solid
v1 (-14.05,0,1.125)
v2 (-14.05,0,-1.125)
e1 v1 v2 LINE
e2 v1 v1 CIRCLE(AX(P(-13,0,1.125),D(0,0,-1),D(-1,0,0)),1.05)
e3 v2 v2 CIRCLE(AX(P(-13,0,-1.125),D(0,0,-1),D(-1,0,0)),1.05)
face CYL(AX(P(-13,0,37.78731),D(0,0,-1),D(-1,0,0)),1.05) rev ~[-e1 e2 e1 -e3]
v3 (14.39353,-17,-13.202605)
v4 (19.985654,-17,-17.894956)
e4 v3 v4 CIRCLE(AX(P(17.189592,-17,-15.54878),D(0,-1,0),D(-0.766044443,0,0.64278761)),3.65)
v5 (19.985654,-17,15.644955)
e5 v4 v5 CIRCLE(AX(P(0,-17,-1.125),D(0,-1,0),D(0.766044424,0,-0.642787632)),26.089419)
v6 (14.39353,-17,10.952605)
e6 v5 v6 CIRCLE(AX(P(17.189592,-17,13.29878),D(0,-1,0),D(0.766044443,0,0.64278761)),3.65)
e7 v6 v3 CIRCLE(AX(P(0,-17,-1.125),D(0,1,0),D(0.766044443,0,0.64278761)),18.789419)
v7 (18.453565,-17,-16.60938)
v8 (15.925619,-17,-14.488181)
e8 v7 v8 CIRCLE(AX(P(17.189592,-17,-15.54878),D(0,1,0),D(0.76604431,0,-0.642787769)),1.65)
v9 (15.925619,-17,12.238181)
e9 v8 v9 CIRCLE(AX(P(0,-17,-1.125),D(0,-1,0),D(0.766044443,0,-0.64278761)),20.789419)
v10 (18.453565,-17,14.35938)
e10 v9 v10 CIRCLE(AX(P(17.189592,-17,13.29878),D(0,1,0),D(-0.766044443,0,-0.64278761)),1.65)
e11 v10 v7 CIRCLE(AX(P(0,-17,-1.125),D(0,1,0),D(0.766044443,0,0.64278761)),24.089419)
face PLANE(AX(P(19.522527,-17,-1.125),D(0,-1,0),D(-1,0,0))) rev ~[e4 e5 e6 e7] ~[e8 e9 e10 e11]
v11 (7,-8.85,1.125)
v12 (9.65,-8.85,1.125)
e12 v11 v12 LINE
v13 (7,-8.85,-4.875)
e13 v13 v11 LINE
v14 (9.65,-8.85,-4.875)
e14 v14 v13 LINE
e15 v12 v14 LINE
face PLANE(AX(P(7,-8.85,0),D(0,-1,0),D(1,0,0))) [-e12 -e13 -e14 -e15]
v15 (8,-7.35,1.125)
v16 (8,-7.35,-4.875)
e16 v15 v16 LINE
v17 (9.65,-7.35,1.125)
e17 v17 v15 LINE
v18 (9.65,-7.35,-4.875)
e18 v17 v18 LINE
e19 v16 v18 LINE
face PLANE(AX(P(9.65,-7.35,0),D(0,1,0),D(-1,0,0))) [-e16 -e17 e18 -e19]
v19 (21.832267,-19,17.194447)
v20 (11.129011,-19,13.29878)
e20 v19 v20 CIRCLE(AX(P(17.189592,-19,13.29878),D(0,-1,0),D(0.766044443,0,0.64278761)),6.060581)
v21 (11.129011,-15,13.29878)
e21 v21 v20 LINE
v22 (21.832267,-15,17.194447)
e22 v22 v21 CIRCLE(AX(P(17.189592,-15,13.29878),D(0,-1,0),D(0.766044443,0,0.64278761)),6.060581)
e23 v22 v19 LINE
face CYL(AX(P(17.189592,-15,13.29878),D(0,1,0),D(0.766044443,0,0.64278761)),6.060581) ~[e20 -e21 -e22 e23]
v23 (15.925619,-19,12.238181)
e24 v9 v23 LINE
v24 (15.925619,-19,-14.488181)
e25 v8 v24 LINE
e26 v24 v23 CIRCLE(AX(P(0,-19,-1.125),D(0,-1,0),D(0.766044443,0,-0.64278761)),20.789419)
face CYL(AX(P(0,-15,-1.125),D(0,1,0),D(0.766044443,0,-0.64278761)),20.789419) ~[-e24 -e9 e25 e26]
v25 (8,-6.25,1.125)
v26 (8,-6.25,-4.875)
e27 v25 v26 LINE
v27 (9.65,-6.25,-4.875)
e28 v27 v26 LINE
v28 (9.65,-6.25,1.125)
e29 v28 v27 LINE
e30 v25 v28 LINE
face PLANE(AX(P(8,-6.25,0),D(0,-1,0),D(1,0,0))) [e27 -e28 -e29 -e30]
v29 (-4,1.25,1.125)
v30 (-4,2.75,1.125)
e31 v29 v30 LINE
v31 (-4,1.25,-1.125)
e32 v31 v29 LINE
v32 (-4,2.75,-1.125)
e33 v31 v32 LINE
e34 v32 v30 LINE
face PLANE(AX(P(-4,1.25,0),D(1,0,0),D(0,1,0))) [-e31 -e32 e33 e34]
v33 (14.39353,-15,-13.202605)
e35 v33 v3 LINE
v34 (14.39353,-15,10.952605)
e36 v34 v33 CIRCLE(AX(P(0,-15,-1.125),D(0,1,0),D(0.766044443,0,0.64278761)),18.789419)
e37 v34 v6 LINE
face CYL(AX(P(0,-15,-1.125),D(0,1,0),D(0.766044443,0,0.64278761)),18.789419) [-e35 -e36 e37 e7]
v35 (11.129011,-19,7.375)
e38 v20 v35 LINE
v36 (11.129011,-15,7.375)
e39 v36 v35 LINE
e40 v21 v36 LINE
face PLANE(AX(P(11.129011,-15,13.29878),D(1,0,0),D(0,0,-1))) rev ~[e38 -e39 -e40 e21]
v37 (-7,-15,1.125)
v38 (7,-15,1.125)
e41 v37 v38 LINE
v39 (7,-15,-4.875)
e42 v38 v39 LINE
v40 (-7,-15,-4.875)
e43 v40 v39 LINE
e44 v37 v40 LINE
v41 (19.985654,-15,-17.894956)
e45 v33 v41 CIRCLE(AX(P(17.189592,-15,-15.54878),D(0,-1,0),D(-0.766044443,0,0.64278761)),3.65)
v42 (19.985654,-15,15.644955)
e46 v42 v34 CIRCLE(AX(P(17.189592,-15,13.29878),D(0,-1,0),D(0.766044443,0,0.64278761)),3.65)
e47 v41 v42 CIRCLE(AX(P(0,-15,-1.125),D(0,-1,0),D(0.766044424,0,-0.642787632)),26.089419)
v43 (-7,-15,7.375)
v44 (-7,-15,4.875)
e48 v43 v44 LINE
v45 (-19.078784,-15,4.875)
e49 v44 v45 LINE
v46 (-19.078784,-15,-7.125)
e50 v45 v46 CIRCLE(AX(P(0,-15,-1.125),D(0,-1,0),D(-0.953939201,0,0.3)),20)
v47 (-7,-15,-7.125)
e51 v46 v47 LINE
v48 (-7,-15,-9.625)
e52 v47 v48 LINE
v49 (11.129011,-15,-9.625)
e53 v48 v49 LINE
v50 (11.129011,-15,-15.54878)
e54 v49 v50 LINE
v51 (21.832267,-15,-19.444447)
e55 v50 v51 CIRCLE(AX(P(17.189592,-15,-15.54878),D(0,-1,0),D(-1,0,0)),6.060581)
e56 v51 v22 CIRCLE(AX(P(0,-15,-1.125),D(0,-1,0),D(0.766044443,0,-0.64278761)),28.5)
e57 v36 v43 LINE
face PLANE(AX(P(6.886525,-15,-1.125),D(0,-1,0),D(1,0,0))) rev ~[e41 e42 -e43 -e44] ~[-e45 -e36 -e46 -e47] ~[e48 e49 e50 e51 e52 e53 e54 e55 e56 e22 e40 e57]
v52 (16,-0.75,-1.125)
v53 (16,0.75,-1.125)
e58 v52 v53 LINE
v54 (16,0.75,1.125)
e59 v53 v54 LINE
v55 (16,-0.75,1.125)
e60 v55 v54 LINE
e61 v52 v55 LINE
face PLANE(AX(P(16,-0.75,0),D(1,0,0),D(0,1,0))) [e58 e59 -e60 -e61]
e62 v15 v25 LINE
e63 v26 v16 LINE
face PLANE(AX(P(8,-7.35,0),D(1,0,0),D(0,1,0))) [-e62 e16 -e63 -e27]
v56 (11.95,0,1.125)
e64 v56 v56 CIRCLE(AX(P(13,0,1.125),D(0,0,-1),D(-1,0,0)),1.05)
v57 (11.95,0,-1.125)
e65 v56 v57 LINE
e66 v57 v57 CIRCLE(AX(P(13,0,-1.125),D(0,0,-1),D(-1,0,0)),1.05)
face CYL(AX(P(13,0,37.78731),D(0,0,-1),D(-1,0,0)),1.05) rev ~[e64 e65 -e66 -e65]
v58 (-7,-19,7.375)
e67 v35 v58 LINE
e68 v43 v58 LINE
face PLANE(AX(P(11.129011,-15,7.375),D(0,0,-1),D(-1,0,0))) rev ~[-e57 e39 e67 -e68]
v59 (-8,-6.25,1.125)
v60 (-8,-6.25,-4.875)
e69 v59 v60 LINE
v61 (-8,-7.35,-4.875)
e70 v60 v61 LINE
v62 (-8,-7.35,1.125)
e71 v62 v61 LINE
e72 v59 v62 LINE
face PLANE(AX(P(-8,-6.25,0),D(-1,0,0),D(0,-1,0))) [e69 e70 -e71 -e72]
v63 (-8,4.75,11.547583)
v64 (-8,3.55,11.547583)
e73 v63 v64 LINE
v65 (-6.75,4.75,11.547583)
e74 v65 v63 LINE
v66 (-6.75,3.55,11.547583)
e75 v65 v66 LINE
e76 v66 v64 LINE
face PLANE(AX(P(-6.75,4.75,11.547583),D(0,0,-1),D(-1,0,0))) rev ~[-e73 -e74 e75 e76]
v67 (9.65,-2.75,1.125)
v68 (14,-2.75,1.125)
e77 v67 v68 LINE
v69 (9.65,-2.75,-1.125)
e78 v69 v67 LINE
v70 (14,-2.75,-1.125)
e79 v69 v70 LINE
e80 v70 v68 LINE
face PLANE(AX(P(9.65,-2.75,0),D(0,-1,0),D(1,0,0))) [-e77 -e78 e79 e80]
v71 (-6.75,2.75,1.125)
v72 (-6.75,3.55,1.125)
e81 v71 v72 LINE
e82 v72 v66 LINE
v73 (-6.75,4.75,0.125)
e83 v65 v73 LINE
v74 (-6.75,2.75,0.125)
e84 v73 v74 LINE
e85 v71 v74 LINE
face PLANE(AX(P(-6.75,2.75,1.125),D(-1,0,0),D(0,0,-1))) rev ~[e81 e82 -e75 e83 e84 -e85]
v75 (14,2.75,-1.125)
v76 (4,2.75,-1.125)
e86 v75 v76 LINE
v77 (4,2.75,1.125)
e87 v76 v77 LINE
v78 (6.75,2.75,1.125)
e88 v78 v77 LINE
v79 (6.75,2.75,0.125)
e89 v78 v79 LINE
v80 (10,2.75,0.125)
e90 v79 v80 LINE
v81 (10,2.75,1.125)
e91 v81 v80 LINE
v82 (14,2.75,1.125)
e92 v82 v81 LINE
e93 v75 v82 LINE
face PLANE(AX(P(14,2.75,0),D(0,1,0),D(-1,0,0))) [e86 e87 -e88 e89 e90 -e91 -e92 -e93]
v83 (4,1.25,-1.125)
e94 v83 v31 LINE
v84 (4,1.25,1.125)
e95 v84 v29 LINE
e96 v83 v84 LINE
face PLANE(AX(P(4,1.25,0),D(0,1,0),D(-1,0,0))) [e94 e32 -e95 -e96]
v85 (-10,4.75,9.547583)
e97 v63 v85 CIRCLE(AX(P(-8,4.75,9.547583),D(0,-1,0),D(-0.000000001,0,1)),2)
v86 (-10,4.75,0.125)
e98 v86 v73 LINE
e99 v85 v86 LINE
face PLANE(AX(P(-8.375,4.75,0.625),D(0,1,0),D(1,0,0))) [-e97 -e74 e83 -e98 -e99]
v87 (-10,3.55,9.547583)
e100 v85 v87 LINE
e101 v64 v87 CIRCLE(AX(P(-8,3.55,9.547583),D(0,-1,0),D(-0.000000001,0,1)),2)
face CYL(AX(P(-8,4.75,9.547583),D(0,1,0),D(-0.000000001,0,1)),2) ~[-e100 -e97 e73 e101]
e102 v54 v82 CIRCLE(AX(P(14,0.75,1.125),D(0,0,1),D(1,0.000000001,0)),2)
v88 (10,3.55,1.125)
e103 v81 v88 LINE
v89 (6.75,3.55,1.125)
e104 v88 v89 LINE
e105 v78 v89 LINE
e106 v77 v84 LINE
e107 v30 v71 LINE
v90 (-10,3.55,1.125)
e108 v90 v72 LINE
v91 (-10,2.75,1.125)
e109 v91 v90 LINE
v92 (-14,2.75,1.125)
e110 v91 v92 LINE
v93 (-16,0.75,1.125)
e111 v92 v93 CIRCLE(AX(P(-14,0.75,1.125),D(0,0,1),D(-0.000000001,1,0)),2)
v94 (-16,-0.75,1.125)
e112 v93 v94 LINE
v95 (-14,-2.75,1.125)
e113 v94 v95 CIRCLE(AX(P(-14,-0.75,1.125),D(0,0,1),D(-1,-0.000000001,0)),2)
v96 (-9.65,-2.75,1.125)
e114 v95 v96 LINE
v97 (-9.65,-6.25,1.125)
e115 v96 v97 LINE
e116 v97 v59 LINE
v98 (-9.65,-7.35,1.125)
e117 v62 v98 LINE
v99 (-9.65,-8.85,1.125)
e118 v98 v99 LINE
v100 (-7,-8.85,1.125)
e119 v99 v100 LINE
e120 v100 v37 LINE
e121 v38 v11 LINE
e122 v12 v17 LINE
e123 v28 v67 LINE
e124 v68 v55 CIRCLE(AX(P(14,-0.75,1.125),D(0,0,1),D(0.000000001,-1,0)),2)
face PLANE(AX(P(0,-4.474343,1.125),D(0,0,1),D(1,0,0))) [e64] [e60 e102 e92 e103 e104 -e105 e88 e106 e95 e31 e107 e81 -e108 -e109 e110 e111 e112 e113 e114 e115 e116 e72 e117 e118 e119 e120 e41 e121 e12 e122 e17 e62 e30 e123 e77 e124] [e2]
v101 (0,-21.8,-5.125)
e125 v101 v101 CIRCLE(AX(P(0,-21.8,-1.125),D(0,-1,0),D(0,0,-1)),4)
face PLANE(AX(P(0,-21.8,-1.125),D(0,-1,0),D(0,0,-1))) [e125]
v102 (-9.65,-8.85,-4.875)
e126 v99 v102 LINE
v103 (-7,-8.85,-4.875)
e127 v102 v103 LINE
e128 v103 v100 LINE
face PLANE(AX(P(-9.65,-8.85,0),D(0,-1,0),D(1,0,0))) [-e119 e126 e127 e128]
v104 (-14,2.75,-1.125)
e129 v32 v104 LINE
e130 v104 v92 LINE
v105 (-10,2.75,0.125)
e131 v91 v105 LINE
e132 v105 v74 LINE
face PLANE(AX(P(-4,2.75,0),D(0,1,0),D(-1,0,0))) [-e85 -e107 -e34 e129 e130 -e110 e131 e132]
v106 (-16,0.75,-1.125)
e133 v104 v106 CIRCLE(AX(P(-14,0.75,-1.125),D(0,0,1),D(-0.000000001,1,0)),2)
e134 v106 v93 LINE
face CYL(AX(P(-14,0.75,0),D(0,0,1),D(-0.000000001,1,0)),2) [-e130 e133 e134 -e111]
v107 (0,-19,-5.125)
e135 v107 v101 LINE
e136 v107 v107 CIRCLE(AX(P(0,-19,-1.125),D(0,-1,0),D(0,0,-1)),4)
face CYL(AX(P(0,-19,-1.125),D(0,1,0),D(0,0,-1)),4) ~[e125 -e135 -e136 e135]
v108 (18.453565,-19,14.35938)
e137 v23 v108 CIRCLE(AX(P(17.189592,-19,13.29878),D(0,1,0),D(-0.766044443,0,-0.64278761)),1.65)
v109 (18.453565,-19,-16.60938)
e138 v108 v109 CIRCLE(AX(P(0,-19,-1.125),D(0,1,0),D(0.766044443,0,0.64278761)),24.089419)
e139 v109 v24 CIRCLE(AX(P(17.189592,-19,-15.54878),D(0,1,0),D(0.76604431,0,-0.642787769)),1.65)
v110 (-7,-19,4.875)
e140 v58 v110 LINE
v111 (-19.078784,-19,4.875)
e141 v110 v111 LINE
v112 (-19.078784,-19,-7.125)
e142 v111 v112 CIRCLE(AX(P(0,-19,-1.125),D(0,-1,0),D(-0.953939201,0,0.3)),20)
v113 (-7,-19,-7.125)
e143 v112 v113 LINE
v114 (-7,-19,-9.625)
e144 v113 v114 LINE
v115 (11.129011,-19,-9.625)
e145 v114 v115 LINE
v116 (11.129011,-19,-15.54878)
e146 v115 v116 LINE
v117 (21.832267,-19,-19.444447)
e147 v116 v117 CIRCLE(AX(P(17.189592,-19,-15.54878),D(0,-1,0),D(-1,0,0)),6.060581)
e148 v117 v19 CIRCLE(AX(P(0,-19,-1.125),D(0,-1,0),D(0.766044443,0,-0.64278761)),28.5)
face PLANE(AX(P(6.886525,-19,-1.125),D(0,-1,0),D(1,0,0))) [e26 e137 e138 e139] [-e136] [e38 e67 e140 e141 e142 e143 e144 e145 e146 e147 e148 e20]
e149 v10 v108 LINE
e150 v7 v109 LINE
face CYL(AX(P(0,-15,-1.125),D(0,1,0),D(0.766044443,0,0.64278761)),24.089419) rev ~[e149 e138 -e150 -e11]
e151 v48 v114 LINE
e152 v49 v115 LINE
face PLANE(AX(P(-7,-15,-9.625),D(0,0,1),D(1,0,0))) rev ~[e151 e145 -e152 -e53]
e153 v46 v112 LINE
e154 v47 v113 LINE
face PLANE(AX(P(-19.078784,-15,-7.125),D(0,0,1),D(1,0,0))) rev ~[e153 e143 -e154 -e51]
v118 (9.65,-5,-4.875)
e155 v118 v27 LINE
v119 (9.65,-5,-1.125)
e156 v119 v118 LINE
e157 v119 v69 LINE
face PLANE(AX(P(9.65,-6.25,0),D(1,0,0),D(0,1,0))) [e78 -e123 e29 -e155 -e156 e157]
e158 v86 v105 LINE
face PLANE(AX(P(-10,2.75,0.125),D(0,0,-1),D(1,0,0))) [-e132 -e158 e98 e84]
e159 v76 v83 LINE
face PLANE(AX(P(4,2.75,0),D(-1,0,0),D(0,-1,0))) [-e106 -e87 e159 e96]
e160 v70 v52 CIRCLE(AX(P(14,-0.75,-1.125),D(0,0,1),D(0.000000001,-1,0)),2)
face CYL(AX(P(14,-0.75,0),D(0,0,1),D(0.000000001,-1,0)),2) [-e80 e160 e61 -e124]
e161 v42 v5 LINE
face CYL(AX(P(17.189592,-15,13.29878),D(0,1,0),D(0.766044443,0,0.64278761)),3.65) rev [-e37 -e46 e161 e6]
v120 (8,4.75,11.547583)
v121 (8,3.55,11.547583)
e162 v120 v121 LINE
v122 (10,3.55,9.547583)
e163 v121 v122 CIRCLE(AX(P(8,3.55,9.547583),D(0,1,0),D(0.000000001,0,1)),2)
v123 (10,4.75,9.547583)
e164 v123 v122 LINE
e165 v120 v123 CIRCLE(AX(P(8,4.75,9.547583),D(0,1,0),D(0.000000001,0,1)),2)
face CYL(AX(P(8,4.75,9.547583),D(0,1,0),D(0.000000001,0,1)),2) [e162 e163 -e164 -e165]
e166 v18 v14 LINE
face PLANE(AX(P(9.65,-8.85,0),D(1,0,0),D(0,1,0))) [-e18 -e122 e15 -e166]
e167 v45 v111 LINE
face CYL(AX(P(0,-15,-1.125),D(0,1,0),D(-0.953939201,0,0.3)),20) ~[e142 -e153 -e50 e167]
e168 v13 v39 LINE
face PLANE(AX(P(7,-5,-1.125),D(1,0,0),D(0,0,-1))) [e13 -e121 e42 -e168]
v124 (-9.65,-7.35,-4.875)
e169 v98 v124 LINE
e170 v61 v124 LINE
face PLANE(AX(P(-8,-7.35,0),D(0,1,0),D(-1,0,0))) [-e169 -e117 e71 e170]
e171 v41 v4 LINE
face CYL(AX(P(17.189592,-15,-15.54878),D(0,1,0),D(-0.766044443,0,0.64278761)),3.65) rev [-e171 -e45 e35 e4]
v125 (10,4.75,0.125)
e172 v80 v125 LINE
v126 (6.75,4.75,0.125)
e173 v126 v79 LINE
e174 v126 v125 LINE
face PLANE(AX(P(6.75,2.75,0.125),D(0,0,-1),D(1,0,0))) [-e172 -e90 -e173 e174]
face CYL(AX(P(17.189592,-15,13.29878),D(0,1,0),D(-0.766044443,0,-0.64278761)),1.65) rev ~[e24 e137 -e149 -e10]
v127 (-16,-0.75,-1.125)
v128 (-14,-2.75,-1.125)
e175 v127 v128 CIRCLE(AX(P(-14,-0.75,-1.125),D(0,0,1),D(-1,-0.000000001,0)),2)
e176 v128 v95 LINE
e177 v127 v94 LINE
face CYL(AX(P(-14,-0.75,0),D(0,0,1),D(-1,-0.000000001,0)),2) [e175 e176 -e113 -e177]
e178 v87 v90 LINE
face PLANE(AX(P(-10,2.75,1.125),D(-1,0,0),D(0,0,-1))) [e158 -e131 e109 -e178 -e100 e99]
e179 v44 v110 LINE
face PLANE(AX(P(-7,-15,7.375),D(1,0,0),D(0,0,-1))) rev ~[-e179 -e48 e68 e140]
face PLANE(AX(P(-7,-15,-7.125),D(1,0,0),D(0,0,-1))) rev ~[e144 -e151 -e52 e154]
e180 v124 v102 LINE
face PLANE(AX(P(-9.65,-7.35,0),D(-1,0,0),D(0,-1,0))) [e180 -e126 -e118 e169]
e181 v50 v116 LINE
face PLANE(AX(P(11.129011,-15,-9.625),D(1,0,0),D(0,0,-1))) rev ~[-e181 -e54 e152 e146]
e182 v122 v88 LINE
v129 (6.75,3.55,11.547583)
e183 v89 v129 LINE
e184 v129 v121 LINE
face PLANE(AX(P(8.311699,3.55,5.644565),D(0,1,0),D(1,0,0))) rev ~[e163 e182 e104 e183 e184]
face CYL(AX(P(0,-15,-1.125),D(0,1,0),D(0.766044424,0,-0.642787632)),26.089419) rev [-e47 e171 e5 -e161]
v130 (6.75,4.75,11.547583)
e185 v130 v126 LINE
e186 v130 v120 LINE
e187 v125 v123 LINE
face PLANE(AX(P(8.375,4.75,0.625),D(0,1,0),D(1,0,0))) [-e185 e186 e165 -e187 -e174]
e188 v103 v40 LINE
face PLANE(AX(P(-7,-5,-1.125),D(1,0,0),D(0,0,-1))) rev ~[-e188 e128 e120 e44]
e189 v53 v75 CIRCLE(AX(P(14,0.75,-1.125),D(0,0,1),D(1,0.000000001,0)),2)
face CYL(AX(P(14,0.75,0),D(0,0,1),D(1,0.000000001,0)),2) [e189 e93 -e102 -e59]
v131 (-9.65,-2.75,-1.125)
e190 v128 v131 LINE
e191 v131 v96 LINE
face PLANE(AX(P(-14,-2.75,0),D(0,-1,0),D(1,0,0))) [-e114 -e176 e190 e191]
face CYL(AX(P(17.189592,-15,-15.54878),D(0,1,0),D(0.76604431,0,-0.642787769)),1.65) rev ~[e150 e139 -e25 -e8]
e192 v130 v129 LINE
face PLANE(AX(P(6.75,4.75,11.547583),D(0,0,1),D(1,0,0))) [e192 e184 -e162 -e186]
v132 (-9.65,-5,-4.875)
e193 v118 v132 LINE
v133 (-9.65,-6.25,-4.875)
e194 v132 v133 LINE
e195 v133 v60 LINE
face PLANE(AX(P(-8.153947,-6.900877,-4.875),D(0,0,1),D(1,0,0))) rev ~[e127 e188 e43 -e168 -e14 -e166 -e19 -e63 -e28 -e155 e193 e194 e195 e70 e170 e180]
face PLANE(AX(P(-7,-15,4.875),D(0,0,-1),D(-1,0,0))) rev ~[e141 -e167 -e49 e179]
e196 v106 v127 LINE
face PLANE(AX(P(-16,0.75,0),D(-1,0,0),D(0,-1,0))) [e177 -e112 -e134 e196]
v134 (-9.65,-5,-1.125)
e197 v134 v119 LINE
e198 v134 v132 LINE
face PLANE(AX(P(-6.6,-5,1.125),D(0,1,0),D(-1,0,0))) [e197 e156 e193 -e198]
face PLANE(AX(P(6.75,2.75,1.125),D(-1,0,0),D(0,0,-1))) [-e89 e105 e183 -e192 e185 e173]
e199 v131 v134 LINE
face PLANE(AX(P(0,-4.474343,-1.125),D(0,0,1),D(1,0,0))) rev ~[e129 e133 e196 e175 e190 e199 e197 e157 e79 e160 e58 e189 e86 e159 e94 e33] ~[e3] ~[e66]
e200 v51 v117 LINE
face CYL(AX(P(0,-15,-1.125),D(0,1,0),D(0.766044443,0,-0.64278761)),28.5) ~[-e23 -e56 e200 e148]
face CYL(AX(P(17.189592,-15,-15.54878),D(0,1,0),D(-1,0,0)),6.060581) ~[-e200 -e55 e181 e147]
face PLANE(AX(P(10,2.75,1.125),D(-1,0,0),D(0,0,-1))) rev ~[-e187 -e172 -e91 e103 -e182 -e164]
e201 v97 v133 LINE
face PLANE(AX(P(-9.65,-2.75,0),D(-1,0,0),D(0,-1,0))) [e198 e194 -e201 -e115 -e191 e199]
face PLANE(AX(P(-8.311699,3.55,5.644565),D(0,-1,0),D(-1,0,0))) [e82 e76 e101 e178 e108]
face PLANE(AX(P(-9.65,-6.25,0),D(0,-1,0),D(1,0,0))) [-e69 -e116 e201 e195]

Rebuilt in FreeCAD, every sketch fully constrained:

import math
import FreeCAD as App
import Part
import Sketcher

V = App.Vector

doc = App.newDocument("Part")
params = doc.addObject("Spreadsheet::Sheet", "Params")
for row, (alias, value) in enumerate([
    ("sketch1_radius", "2 mm"),
    ("sketch1_width", "14 mm"),
    ("sketch1_width2", "10 mm"),
    ("sketch1_width3", "8 mm"),
    ("sketch1_height", "1.5 mm"),
    ("pad1_length", "2.25 mm"),
    ("sketch2_diameter", "2.1 mm"),
    ("hole_diameter", "2.1 mm"),
    ("sketch3_radius", "20 mm"),
    ("sketch3_radius2", "28.5 mm"),
    ("sketch3_radius3", "1.65 mm"),
    ("sketch3_height", "2.5 mm"),
    ("pad2_length", "4 mm"),
    ("sketch4_diameter", "8 mm"),
    ("pad3_length", "2.8 mm"),
    ("sketch5_radius", "3.65 mm"),
    ("sketch5_radius2", "1.65 mm"),
    ("pocket1_length", "2 mm"),
    ("sketch6_height", "1.1 mm"),
    ("sketch6_height2", "1.5 mm"),
    ("sketch6_width", "1.65 mm"),
    ("sketch6_width2", "3.05 mm"),
    ("sketch6_height3", "1.25 mm"),
    ("pad4_length", "6 mm"),
    ("sketch7_height", "1 mm"),
    ("sketch7_width", "3.25 mm"),
    ("pad5_length", "2 mm"),
    ("sketch8_radius", "2 mm"),
    ("sketch8_width", "3.25 mm"),
    ("pad6_length", "1.2 mm"),
    ("sketch9_width", "14 mm"),
    ("sketch9_height", "3.75 mm"),
    ("pad7_length", "10 mm"),
], start=1):
    params.set(f"A{row}", alias)
    params.set(f"B{row}", "=" + value)
    params.setAlias(f"B{row}", alias)

body = doc.addObject("PartDesign::Body", "Body")

# Sketch on XY plane
sketch1 = doc.addObject("Sketcher::SketchObject", "Sketch")
body.addObject(sketch1)
sketch1.AttachmentSupport = (doc.XY_Plane, [""])
sketch1.MapMode = "FlatFace"
sketch1.addGeometry(Part.LineSegment(V(-7, -8.8, 0), V(-7, -15, 0)), False)
sketch1.addGeometry(Part.LineSegment(V(-7, -15, 0), V(7, -15, 0)), False)
sketch1.addGeometry(Part.LineSegment(V(7, -15, 0), V(7, -8.8, 0)), False)
sketch1.addGeometry(Part.LineSegment(V(7, -8.8, 0), V(9.7, -8.8, 0)), False)
sketch1.addGeometry(Part.LineSegment(V(9.7, -8.8, 0), V(9.7, -7.3, 0)), False)
sketch1.addGeometry(Part.LineSegment(V(9.7, -7.3, 0), V(8, -7.3, 0)), False)
sketch1.addGeometry(Part.LineSegment(V(8, -7.3, 0), V(8, -6.2, 0)), False)
sketch1.addGeometry(Part.LineSegment(V(8, -6.2, 0), V(9.7, -6.2, 0)), False)
sketch1.addGeometry(Part.LineSegment(V(9.7, -6.2, 0), V(9.7, -2.8, 0)), False)
sketch1.addGeometry(Part.LineSegment(V(9.7, -2.8, 0), V(14, -2.8, 0)), False)
sketch1.addGeometry(Part.ArcOfCircle(Part.Circle(V(14, -0.7, 0), V(0, 0, 1), 2), math.radians(-90), math.radians(0)), False)
sketch1.addGeometry(Part.LineSegment(V(16, -0.8, 0), V(16, 0.8, 0)), False)
sketch1.addGeometry(Part.ArcOfCircle(Part.Circle(V(14, 0.7, 0), V(0, 0, 1), 2), math.radians(0), math.radians(90)), False)
sketch1.addGeometry(Part.LineSegment(V(14, 2.8, 0), V(4, 2.8, 0)), False)
sketch1.addGeometry(Part.LineSegment(V(4, 2.8, 0), V(4, 1.2, 0)), False)
sketch1.addGeometry(Part.LineSegment(V(4, 1.2, 0), V(-4, 1.2, 0)), False)
sketch1.addGeometry(Part.LineSegment(V(-4, 1.2, 0), V(-4, 2.8, 0)), False)
sketch1.addGeometry(Part.LineSegment(V(-4, 2.8, 0), V(-14, 2.8, 0)), False)
sketch1.addGeometry(Part.ArcOfCircle(Part.Circle(V(-14, 0.7, 0), V(0, 0, 1), 2), math.radians(90), math.radians(180)), False)
sketch1.addGeometry(Part.LineSegment(V(-16, 0.8, 0), V(-16, -0.8, 0)), False)
sketch1.addGeometry(Part.ArcOfCircle(Part.Circle(V(-14, -0.7, 0), V(0, 0, 1), 2), math.radians(-180), math.radians(-90)), False)
sketch1.addGeometry(Part.LineSegment(V(-14, -2.8, 0), V(-9.7, -2.8, 0)), False)
sketch1.addGeometry(Part.LineSegment(V(-9.7, -2.8, 0), V(-9.7, -6.2, 0)), False)
sketch1.addGeometry(Part.LineSegment(V(-9.7, -6.2, 0), V(-8, -6.2, 0)), False)
sketch1.addGeometry(Part.LineSegment(V(-8, -6.2, 0), V(-8, -7.3, 0)), False)
sketch1.addGeometry(Part.LineSegment(V(-8, -7.3, 0), V(-9.7, -7.3, 0)), False)
sketch1.addGeometry(Part.LineSegment(V(-9.7, -7.3, 0), V(-9.7, -8.8, 0)), False)
sketch1.addGeometry(Part.LineSegment(V(-9.7, -8.8, 0), V(-7, -8.8, 0)), False)
sketch1.addConstraint(Sketcher.Constraint("Coincident", 0, 2, 1, 1))
sketch1.addConstraint(Sketcher.Constraint("Coincident", 1, 2, 2, 1))
sketch1.addConstraint(Sketcher.Constraint("Coincident", 2, 2, 3, 1))
sketch1.addConstraint(Sketcher.Constraint("Coincident", 3, 2, 4, 1))
sketch1.addConstraint(Sketcher.Constraint("Coincident", 4, 2, 5, 1))
sketch1.addConstraint(Sketcher.Constraint("Coincident", 5, 2, 6, 1))
sketch1.addConstraint(Sketcher.Constraint("Coincident", 6, 2, 7, 1))
sketch1.addConstraint(Sketcher.Constraint("Coincident", 7, 2, 8, 1))
sketch1.addConstraint(Sketcher.Constraint("Coincident", 8, 2, 9, 1))
sketch1.addConstraint(Sketcher.Constraint("Tangent", 9, 2, 10, 1))
sketch1.addConstraint(Sketcher.Constraint("Tangent", 10, 2, 11, 1))
sketch1.addConstraint(Sketcher.Constraint("Tangent", 11, 2, 12, 1))
sketch1.addConstraint(Sketcher.Constraint("Tangent", 12, 2, 13, 1))
sketch1.addConstraint(Sketcher.Constraint("Coincident", 13, 2, 14, 1))
sketch1.addConstraint(Sketcher.Constraint("Coincident", 14, 2, 15, 1))
sketch1.addConstraint(Sketcher.Constraint("Coincident", 15, 2, 16, 1))
sketch1.addConstraint(Sketcher.Constraint("Coincident", 16, 2, 17, 1))
sketch1.addConstraint(Sketcher.Constraint("Tangent", 17, 2, 18, 1))
sketch1.addConstraint(Sketcher.Constraint("Tangent", 18, 2, 19, 1))
sketch1.addConstraint(Sketcher.Constraint("Tangent", 19, 2, 20, 1))
sketch1.addConstraint(Sketcher.Constraint("Tangent", 20, 2, 21, 1))
sketch1.addConstraint(Sketcher.Constraint("Coincident", 21, 2, 22, 1))
sketch1.addConstraint(Sketcher.Constraint("Coincident", 22, 2, 23, 1))
sketch1.addConstraint(Sketcher.Constraint("Coincident", 23, 2, 24, 1))
sketch1.addConstraint(Sketcher.Constraint("Coincident", 24, 2, 25, 1))
sketch1.addConstraint(Sketcher.Constraint("Coincident", 25, 2, 26, 1))
sketch1.addConstraint(Sketcher.Constraint("Coincident", 26, 2, 27, 1))
sketch1.addConstraint(Sketcher.Constraint("Coincident", 27, 2, 0, 1))
sketch1.addConstraint(Sketcher.Constraint("Vertical", 0))
sketch1.addConstraint(Sketcher.Constraint("Horizontal", 1))
sketch1.addConstraint(Sketcher.Constraint("Vertical", 2))
sketch1.addConstraint(Sketcher.Constraint("Horizontal", 3))
sketch1.addConstraint(Sketcher.Constraint("Vertical", 4))
sketch1.addConstraint(Sketcher.Constraint("Horizontal", 5))
sketch1.addConstraint(Sketcher.Constraint("Vertical", 6))
sketch1.addConstraint(Sketcher.Constraint("Horizontal", 7))
sketch1.addConstraint(Sketcher.Constraint("Vertical", 8))
sketch1.addConstraint(Sketcher.Constraint("Horizontal", 9))
sketch1.addConstraint(Sketcher.Constraint("Vertical", 11))
sketch1.addConstraint(Sketcher.Constraint("Horizontal", 13))
sketch1.addConstraint(Sketcher.Constraint("Vertical", 14))
sketch1.addConstraint(Sketcher.Constraint("Horizontal", 15))
sketch1.addConstraint(Sketcher.Constraint("Vertical", 16))
sketch1.addConstraint(Sketcher.Constraint("Horizontal", 17))
sketch1.addConstraint(Sketcher.Constraint("Vertical", 19))
sketch1.addConstraint(Sketcher.Constraint("Horizontal", 21))
sketch1.addConstraint(Sketcher.Constraint("Vertical", 22))
sketch1.addConstraint(Sketcher.Constraint("Horizontal", 23))
sketch1.addConstraint(Sketcher.Constraint("Vertical", 24))
sketch1.addConstraint(Sketcher.Constraint("Horizontal", 25))
sketch1.addConstraint(Sketcher.Constraint("Vertical", 26))
sketch1.addConstraint(Sketcher.Constraint("Horizontal", 27))
sketch1.addConstraint(Sketcher.Constraint("Equal", 10, 12))
sketch1.addConstraint(Sketcher.Constraint("Equal", 12, 18))
sketch1.addConstraint(Sketcher.Constraint("Equal", 18, 20))
sketch1.addConstraint(Sketcher.Constraint("Symmetric", 10, 3, 18, 3, -1, 1))
sketch1.addConstraint(Sketcher.Constraint("Symmetric", 13, 2, 16, 2, -2))
sketch1.addConstraint(Sketcher.Constraint("Symmetric", 8, 2, 21, 2, -2))
sketch1.addConstraint(Sketcher.Constraint("Symmetric", 6, 2, 23, 2, -2))
sketch1.addConstraint(Sketcher.Constraint("Symmetric", 4, 2, 25, 2, -2))
sketch1.addConstraint(Sketcher.Constraint("Symmetric", 2, 2, 27, 2, -2))
sketch1.addConstraint(Sketcher.Constraint("Vertical", 4, 2, 7, 2))
sketch1.addConstraint(Sketcher.Constraint("Equal", 4, 11))
sketch1.addConstraint(Sketcher.Constraint("Equal", 11, 14))
sketch1.addConstraint(Sketcher.Constraint("Radius", 10, 2.0))
sketch1.addConstraint(Sketcher.Constraint("DistanceX", 1, 1, 1, 2, 14.0))
sketch1.addConstraint(Sketcher.Constraint("DistanceX", 13, 2, 13, 1, 10.0))
sketch1.addConstraint(Sketcher.Constraint("DistanceX", 15, 2, 15, 1, 8.0))
sketch1.addConstraint(Sketcher.Constraint("DistanceY", 4, 1, 4, 2, 1.5))
sketch1.addConstraint(Sketcher.Constraint("DistanceY", 6, 1, 6, 2, 1.1))
sketch1.addConstraint(Sketcher.Constraint("DistanceY", 8, 1, 8, 2, 3.5))
sketch1.addConstraint(Sketcher.Constraint("DistanceY", 0, 2, -1, 1, 15.0))
sketch1.addConstraint(Sketcher.Constraint("DistanceX", -1, 1, 5, 2, 8.0))
sketch1.addConstraint(Sketcher.Constraint("DistanceX", 3, 1, 3, 2, 2.65))
sketch1.setExpression("Constraints[64]", "Params.sketch1_radius")
sketch1.setExpression("Constraints[65]", "Params.sketch1_width")
sketch1.setExpression("Constraints[66]", "Params.sketch1_width2")
sketch1.setExpression("Constraints[67]", "Params.sketch1_width3")
sketch1.setExpression("Constraints[68]", "Params.sketch1_height")
pad1 = doc.addObject("PartDesign::Pad", "Pad")
body.addObject(pad1)
pad1.Profile = sketch1
pad1.setExpression("Length", "Params.pad1_length")
pad1.Midplane = True

# Sketch on XY plane
sketch2 = doc.addObject("Sketcher::SketchObject", "Sketch001")
body.addObject(sketch2)
sketch2.AttachmentSupport = (doc.XY_Plane, [""])
sketch2.MapMode = "FlatFace"
sketch2.AttachmentOffset = App.Placement(V(0, 0, 1.125), App.Rotation())
sketch2.addGeometry(Part.Circle(V(-13, 0, 0), V(0, 0, 1), 1.1), False)
sketch2.addGeometry(Part.Circle(V(13, 0, 0), V(0, 0, 1), 1.1), False)
sketch2.addConstraint(Sketcher.Constraint("Equal", 0, 1))
sketch2.addConstraint(Sketcher.Constraint("Symmetric", 0, 3, 1, 3, -1, 1))
sketch2.addConstraint(Sketcher.Constraint("PointOnObject", 0, 3, -1))
sketch2.addConstraint(Sketcher.Constraint("Diameter", 0, 2.1))
sketch2.addConstraint(Sketcher.Constraint("DistanceX", 0, 3, -1, 1, 13.0))
sketch2.setExpression("Constraints[3]", "Params.sketch2_diameter")
doc.recompute()
hole = doc.addObject("PartDesign::Hole", "Hole")
body.addObject(hole)
hole.Profile = sketch2
hole.ThreadType = "None"
hole.setExpression("Diameter", "Params.hole_diameter")
hole.DepthType = "ThroughAll"

# Sketch on XZ plane
sketch3 = doc.addObject("Sketcher::SketchObject", "Sketch002")
body.addObject(sketch3)
sketch3.AttachmentSupport = (doc.XZ_Plane, [""])
sketch3.MapMode = "FlatFace"
sketch3.AttachmentOffset = App.Placement(V(0, 0, 15), App.Rotation())
sketch3.addGeometry(Part.LineSegment(V(-7, -7.1, 0), V(-7, -9.6, 0)), False)
sketch3.addGeometry(Part.LineSegment(V(-7, -9.6, 0), V(11.1, -9.6, 0)), False)
sketch3.addGeometry(Part.LineSegment(V(11.1, -9.6, 0), V(11.1, -15.5, 0)), False)
sketch3.addGeometry(Part.ArcOfCircle(Part.Circle(V(17.2, -15.5, 0), V(0, 0, 1), 6.1), math.radians(-180), math.radians(-40)), False)
sketch3.addGeometry(Part.ArcOfCircle(Part.Circle(V(0, -1.1, 0), V(0, 0, 1), 28.5), math.radians(-40), math.radians(40)), False)
sketch3.addGeometry(Part.ArcOfCircle(Part.Circle(V(17.2, 13.3, 0), V(0, 0, 1), 6.1), math.radians(40), math.radians(180)), False)
sketch3.addGeometry(Part.LineSegment(V(11.1, 13.3, 0), V(11.1, 7.4, 0)), False)
sketch3.addGeometry(Part.LineSegment(V(11.1, 7.4, 0), V(-7, 7.4, 0)), False)
sketch3.addGeometry(Part.LineSegment(V(-7, 7.4, 0), V(-7, 4.9, 0)), False)
sketch3.addGeometry(Part.LineSegment(V(-7, 4.9, 0), V(-19.1, 4.9, 0)), False)
sketch3.addGeometry(Part.ArcOfCircle(Part.Circle(V(0, -1.1, 0), V(0, 0, 1), 20), math.radians(163), math.radians(197)), False)
sketch3.addGeometry(Part.LineSegment(V(-19.1, -7.1, 0), V(-7, -7.1, 0)), False)
sketch3.addGeometry(Part.ArcOfCircle(Part.Circle(V(17.2, -15.5, 0), V(0, 0, 1), 1.6), math.radians(140), math.radians(320)), False)
sketch3.addGeometry(Part.ArcOfCircle(Part.Circle(V(0, -1.1, 0), V(0, 0, 1), 20.8), math.radians(-40), math.radians(40)), False)
sketch3.addGeometry(Part.ArcOfCircle(Part.Circle(V(17.2, 13.3, 0), V(0, 0, 1), 1.6), math.radians(40), math.radians(220)), False)
sketch3.addGeometry(Part.ArcOfCircle(Part.Circle(V(0, -1.1, 0), V(0, 0, 1), 24.1), math.radians(-40), math.radians(40)), False)
sketch3.addConstraint(Sketcher.Constraint("Coincident", 0, 2, 1, 1))
sketch3.addConstraint(Sketcher.Constraint("Coincident", 1, 2, 2, 1))
sketch3.addConstraint(Sketcher.Constraint("Tangent", 2, 2, 3, 1))
sketch3.addConstraint(Sketcher.Constraint("Tangent", 3, 2, 4, 1))
sketch3.addConstraint(Sketcher.Constraint("Tangent", 4, 2, 5, 1))
sketch3.addConstraint(Sketcher.Constraint("Tangent", 5, 2, 6, 1))
sketch3.addConstraint(Sketcher.Constraint("Coincident", 6, 2, 7, 1))
sketch3.addConstraint(Sketcher.Constraint("Coincident", 7, 2, 8, 1))
sketch3.addConstraint(Sketcher.Constraint("Coincident", 8, 2, 9, 1))
sketch3.addConstraint(Sketcher.Constraint("Coincident", 9, 2, 10, 1))
sketch3.addConstraint(Sketcher.Constraint("Coincident", 10, 2, 11, 1))
sketch3.addConstraint(Sketcher.Constraint("Coincident", 11, 2, 0, 1))
sketch3.addConstraint(Sketcher.Constraint("Tangent", 12, 1, 13, 1))
sketch3.addConstraint(Sketcher.Constraint("Tangent", 13, 2, 14, 2))
sketch3.addConstraint(Sketcher.Constraint("Tangent", 14, 1, 15, 2))
sketch3.addConstraint(Sketcher.Constraint("Tangent", 15, 1, 12, 2))
sketch3.addConstraint(Sketcher.Constraint("Vertical", 0))
sketch3.addConstraint(Sketcher.Constraint("Horizontal", 1))
sketch3.addConstraint(Sketcher.Constraint("Vertical", 2))
sketch3.addConstraint(Sketcher.Constraint("Vertical", 6))
sketch3.addConstraint(Sketcher.Constraint("Horizontal", 7))
sketch3.addConstraint(Sketcher.Constraint("Vertical", 8))
sketch3.addConstraint(Sketcher.Constraint("Horizontal", 9))
sketch3.addConstraint(Sketcher.Constraint("Horizontal", 11))
sketch3.addConstraint(Sketcher.Constraint("Coincident", 10, 3, 4, 3))
sketch3.addConstraint(Sketcher.Constraint("Coincident", 12, 3, 3, 3))
sketch3.addConstraint(Sketcher.Constraint("Coincident", 13, 3, 4, 3))
sketch3.addConstraint(Sketcher.Constraint("Coincident", 14, 3, 5, 3))
sketch3.addConstraint(Sketcher.Constraint("Coincident", 15, 3, 4, 3))
sketch3.addConstraint(Sketcher.Constraint("PointOnObject", 4, 3, -2))
sketch3.addConstraint(Sketcher.Constraint("Vertical", 3, 3, 5, 3))
sketch3.addConstraint(Sketcher.Constraint("Vertical", 0, 2, 7, 2))
sketch3.addConstraint(Sketcher.Constraint("Vertical", 9, 2, 10, 2))
sketch3.addConstraint(Sketcher.Constraint("Equal", 2, 6))
sketch3.addConstraint(Sketcher.Constraint("Radius", 10, 20.0))
sketch3.addConstraint(Sketcher.Constraint("Radius", 4, 28.5))
sketch3.addConstraint(Sketcher.Constraint("Radius", 12, 1.65))
sketch3.addConstraint(Sketcher.Constraint("DistanceY", 0, 2, 0, 1, 2.5))
sketch3.addConstraint(Sketcher.Constraint("DistanceX", 0, 2, -1, 1, 7.0))
sketch3.addConstraint(Sketcher.Constraint("DistanceY", 0, 2, 7, 2, 17.0))
sketch3.addConstraint(Sketcher.Constraint("Radius", 3, 6.060581))
sketch3.addConstraint(Sketcher.Constraint("DistanceY", 4, 3, -1, 1, 1.125))
sketch3.addConstraint(Sketcher.Constraint("DistanceX", 1, 1, 1, 2, 18.129011))
sketch3.setExpression("Constraints[34]", "Params.sketch3_radius")
sketch3.setExpression("Constraints[35]", "Params.sketch3_radius2")
sketch3.setExpression("Constraints[36]", "Params.sketch3_radius3")
sketch3.setExpression("Constraints[37]", "Params.sketch3_height")
pad2 = doc.addObject("PartDesign::Pad", "Pad001")
body.addObject(pad2)
pad2.Profile = sketch3
pad2.setExpression("Length", "Params.pad2_length")

# Sketch on XZ plane
sketch4 = doc.addObject("Sketcher::SketchObject", "Sketch003")
body.addObject(sketch4)
sketch4.AttachmentSupport = (doc.XZ_Plane, [""])
sketch4.MapMode = "FlatFace"
sketch4.AttachmentOffset = App.Placement(V(0, 0, 19), App.Rotation())
sketch4.addGeometry(Part.Circle(V(0, -1.1, 0), V(0, 0, 1), 4), False)
sketch4.addConstraint(Sketcher.Constraint("PointOnObject", 0, 3, -2))
sketch4.addConstraint(Sketcher.Constraint("Diameter", 0, 8.0))
sketch4.addConstraint(Sketcher.Constraint("DistanceY", 0, 3, -1, 1, 1.125))
sketch4.setExpression("Constraints[1]", "Params.sketch4_diameter")
pad3 = doc.addObject("PartDesign::Pad", "Pad002")
body.addObject(pad3)
pad3.Profile = sketch4
pad3.setExpression("Length", "Params.pad3_length")

# Sketch on XZ plane
sketch5 = doc.addObject("Sketcher::SketchObject", "Sketch004")
body.addObject(sketch5)
sketch5.AttachmentSupport = (doc.XZ_Plane, [""])
sketch5.MapMode = "FlatFace"
sketch5.AttachmentOffset = App.Placement(V(0, 0, 15), App.Rotation())
sketch5.addGeometry(Part.ArcOfCircle(Part.Circle(V(0, -1.1, 0), V(0, 0, 1), 18.8), math.radians(-40), math.radians(40)), False)
sketch5.addGeometry(Part.ArcOfCircle(Part.Circle(V(17.2, 13.3, 0), V(0, 0, 1), 3.6), math.radians(40), math.radians(220)), False)
sketch5.addGeometry(Part.ArcOfCircle(Part.Circle(V(0, -1.1, 0), V(0, 0, 1), 26.1), math.radians(-40), math.radians(40)), False)
sketch5.addGeometry(Part.ArcOfCircle(Part.Circle(V(17.2, -15.5, 0), V(0, 0, 1), 3.6), math.radians(140), math.radians(320)), False)
sketch5.addGeometry(Part.ArcOfCircle(Part.Circle(V(0, -1.1, 0), V(0, 0, 1), 24.1), math.radians(-40), math.radians(40)), False)
sketch5.addGeometry(Part.ArcOfCircle(Part.Circle(V(17.2, 13.3, 0), V(0, 0, 1), 1.6), math.radians(40), math.radians(220)), False)
sketch5.addGeometry(Part.ArcOfCircle(Part.Circle(V(0, -1.1, 0), V(0, 0, 1), 20.8), math.radians(-40), math.radians(40)), False)
sketch5.addGeometry(Part.ArcOfCircle(Part.Circle(V(17.2, -15.5, 0), V(0, 0, 1), 1.6), math.radians(140), math.radians(320)), False)
sketch5.addConstraint(Sketcher.Constraint("Tangent", 0, 2, 1, 2))
sketch5.addConstraint(Sketcher.Constraint("Tangent", 1, 1, 2, 2))
sketch5.addConstraint(Sketcher.Constraint("Tangent", 2, 1, 3, 2))
sketch5.addConstraint(Sketcher.Constraint("Tangent", 3, 1, 0, 1))
sketch5.addConstraint(Sketcher.Constraint("Tangent", 4, 2, 5, 1))
sketch5.addConstraint(Sketcher.Constraint("Tangent", 5, 2, 6, 2))
sketch5.addConstraint(Sketcher.Constraint("Tangent", 6, 1, 7, 1))
sketch5.addConstraint(Sketcher.Constraint("Tangent", 7, 2, 4, 1))
sketch5.addConstraint(Sketcher.Constraint("Coincident", 2, 3, 0, 3))
sketch5.addConstraint(Sketcher.Constraint("Coincident", 4, 3, 0, 3))
sketch5.addConstraint(Sketcher.Constraint("Coincident", 5, 3, 1, 3))
sketch5.addConstraint(Sketcher.Constraint("Coincident", 6, 3, 0, 3))
sketch5.addConstraint(Sketcher.Constraint("PointOnObject", 0, 3, -2))
sketch5.addConstraint(Sketcher.Constraint("Vertical", 1, 3, 3, 3))
sketch5.addConstraint(Sketcher.Constraint("Vertical", 5, 3, 7, 3))
sketch5.addConstraint(Sketcher.Constraint("Radius", 1, 3.65))
sketch5.addConstraint(Sketcher.Constraint("Radius", 5, 1.65))
sketch5.addConstraint(Sketcher.Constraint("Radius", 0, 18.789419))
sketch5.addConstraint(Sketcher.Constraint("DistanceY", 0, 3, -1, 1, 1.125))
sketch5.addConstraint(Sketcher.Constraint("DistanceY", 5, 2, 5, 3, 1.0606))
sketch5.setExpression("Constraints[15]", "Params.sketch5_radius")
sketch5.setExpression("Constraints[16]", "Params.sketch5_radius2")
pocket1 = doc.addObject("PartDesign::Pocket", "Pocket")
body.addObject(pocket1)
pocket1.Profile = sketch5
pocket1.setExpression("Length", "Params.pocket1_length")
pocket1.Reversed = True

# Sketch on XY plane
sketch6 = doc.addObject("Sketcher::SketchObject", "Sketch005")
body.addObject(sketch6)
sketch6.AttachmentSupport = (doc.XY_Plane, [""])
sketch6.MapMode = "FlatFace"
sketch6.AttachmentOffset = App.Placement(V(0, 0, 1.125), App.Rotation())
sketch6.addGeometry(Part.LineSegment(V(-9.7, -5, 0), V(-9.7, -6.2, 0)), False)
sketch6.addGeometry(Part.LineSegment(V(-9.7, -6.2, 0), V(-8, -6.2, 0)), False)
sketch6.addGeometry(Part.LineSegment(V(-8, -6.2, 0), V(-8, -7.3, 0)), False)
sketch6.addGeometry(Part.LineSegment(V(-8, -7.3, 0), V(-9.7, -7.3, 0)), False)
sketch6.addGeometry(Part.LineSegment(V(-9.7, -7.3, 0), V(-9.7, -8.8, 0)), False)
sketch6.addGeometry(Part.LineSegment(V(-9.7, -8.8, 0), V(-6.6, -8.8, 0)), False)
sketch6.addGeometry(Part.LineSegment(V(-6.6, -8.8, 0), V(-6.6, -5, 0)), False)
sketch6.addGeometry(Part.LineSegment(V(-6.6, -5, 0), V(-9.7, -5, 0)), False)
sketch6.addConstraint(Sketcher.Constraint("Coincident", 0, 2, 1, 1))
sketch6.addConstraint(Sketcher.Constraint("Coincident", 1, 2, 2, 1))
sketch6.addConstraint(Sketcher.Constraint("Coincident", 2, 2, 3, 1))
sketch6.addConstraint(Sketcher.Constraint("Coincident", 3, 2, 4, 1))
sketch6.addConstraint(Sketcher.Constraint("Coincident", 4, 2, 5, 1))
sketch6.addConstraint(Sketcher.Constraint("Coincident", 5, 2, 6, 1))
sketch6.addConstraint(Sketcher.Constraint("Coincident", 6, 2, 7, 1))
sketch6.addConstraint(Sketcher.Constraint("Coincident", 7, 2, 0, 1))
sketch6.addConstraint(Sketcher.Constraint("Vertical", 0))
sketch6.addConstraint(Sketcher.Constraint("Horizontal", 1))
sketch6.addConstraint(Sketcher.Constraint("Vertical", 2))
sketch6.addConstraint(Sketcher.Constraint("Horizontal", 3))
sketch6.addConstraint(Sketcher.Constraint("Vertical", 4))
sketch6.addConstraint(Sketcher.Constraint("Horizontal", 5))
sketch6.addConstraint(Sketcher.Constraint("Vertical", 6))
sketch6.addConstraint(Sketcher.Constraint("Horizontal", 7))
sketch6.addConstraint(Sketcher.Constraint("Vertical", 0, 2, 3, 2))
sketch6.addConstraint(Sketcher.Constraint("DistanceY", 2, 2, 2, 1, 1.1))
sketch6.addConstraint(Sketcher.Constraint("DistanceY", 4, 2, 4, 1, 1.5))
sketch6.addConstraint(Sketcher.Constraint("DistanceX", 1, 2, -1, 1, 8.0))
sketch6.addConstraint(Sketcher.Constraint("DistanceY", 6, 2, -1, 1, 5.0))
sketch6.addConstraint(Sketcher.Constraint("DistanceX", 1, 1, 1, 2, 1.65))
sketch6.addConstraint(Sketcher.Constraint("DistanceX", 5, 1, 5, 2, 3.05))
sketch6.addConstraint(Sketcher.Constraint("DistanceY", 0, 2, 0, 1, 1.25))
sketch6.setExpression("Constraints[17]", "Params.sketch6_height")
sketch6.setExpression("Constraints[18]", "Params.sketch6_height2")
sketch6.setExpression("Constraints[21]", "Params.sketch6_width")
sketch6.setExpression("Constraints[22]", "Params.sketch6_width2")
sketch6.setExpression("Constraints[23]", "Params.sketch6_height3")
pad4 = doc.addObject("PartDesign::Pad", "Pad003")
body.addObject(pad4)
pad4.Profile = sketch6
pad4.setExpression("Length", "Params.pad4_length")
pad4.Reversed = True
doc.recompute()

mirrored = doc.addObject("PartDesign::Mirrored", "Mirrored")
body.addObject(mirrored)
mirrored.Originals = [pad4]
mirrored.MirrorPlane = (doc.YZ_Plane, [""])
body.Tip = mirrored

# Sketch on XZ plane
sketch7 = doc.addObject("Sketcher::SketchObject", "Sketch006")
body.addObject(sketch7)
sketch7.AttachmentSupport = (doc.XZ_Plane, [""])
sketch7.MapMode = "FlatFace"
sketch7.AttachmentOffset = App.Placement(V(0, 0, -2.75), App.Rotation())
sketch7.addGeometry(Part.LineSegment(V(-10, 0.1, 0), V(-10, 1.1, 0)), False)
sketch7.addGeometry(Part.LineSegment(V(-10, 1.1, 0), V(-6.8, 1.1, 0)), False)
sketch7.addGeometry(Part.LineSegment(V(-6.8, 1.1, 0), V(-6.8, 0.1, 0)), False)
sketch7.addGeometry(Part.LineSegment(V(-6.8, 0.1, 0), V(-10, 0.1, 0)), False)
sketch7.addGeometry(Part.LineSegment(V(6.8, 0.1, 0), V(6.8, 1.1, 0)), False)
sketch7.addGeometry(Part.LineSegment(V(6.8, 1.1, 0), V(10, 1.1, 0)), False)
sketch7.addGeometry(Part.LineSegment(V(10, 1.1, 0), V(10, 0.1, 0)), False)
sketch7.addGeometry(Part.LineSegment(V(10, 0.1, 0), V(6.8, 0.1, 0)), False)
sketch7.addConstraint(Sketcher.Constraint("Coincident", 0, 2, 1, 1))
sketch7.addConstraint(Sketcher.Constraint("Coincident", 1, 2, 2, 1))
sketch7.addConstraint(Sketcher.Constraint("Coincident", 2, 2, 3, 1))
sketch7.addConstraint(Sketcher.Constraint("Coincident", 3, 2, 0, 1))
sketch7.addConstraint(Sketcher.Constraint("Coincident", 4, 2, 5, 1))
sketch7.addConstraint(Sketcher.Constraint("Coincident", 5, 2, 6, 1))
sketch7.addConstraint(Sketcher.Constraint("Coincident", 6, 2, 7, 1))
sketch7.addConstraint(Sketcher.Constraint("Coincident", 7, 2, 4, 1))
sketch7.addConstraint(Sketcher.Constraint("Vertical", 0))
sketch7.addConstraint(Sketcher.Constraint("Horizontal", 1))
sketch7.addConstraint(Sketcher.Constraint("Vertical", 2))
sketch7.addConstraint(Sketcher.Constraint("Horizontal", 3))
sketch7.addConstraint(Sketcher.Constraint("Vertical", 4))
sketch7.addConstraint(Sketcher.Constraint("Horizontal", 5))
sketch7.addConstraint(Sketcher.Constraint("Vertical", 6))
sketch7.addConstraint(Sketcher.Constraint("Horizontal", 7))
sketch7.addConstraint(Sketcher.Constraint("Symmetric", 1, 2, 4, 2, -2))
sketch7.addConstraint(Sketcher.Constraint("Symmetric", 3, 2, 6, 2, -2))
sketch7.addConstraint(Sketcher.Constraint("DistanceY", 0, 1, 0, 2, 1.0))
sketch7.addConstraint(Sketcher.Constraint("DistanceX", 0, 2, -1, 1, 10.0))
sketch7.addConstraint(Sketcher.Constraint("DistanceX", 1, 1, 1, 2, 3.25))
sketch7.addConstraint(Sketcher.Constraint("DistanceY", -1, 1, 0, 2, 1.125))
sketch7.setExpression("Constraints[18]", "Params.sketch7_height")
sketch7.setExpression("Constraints[20]", "Params.sketch7_width")
pad5 = doc.addObject("PartDesign::Pad", "Pad004")
body.addObject(pad5)
pad5.Profile = sketch7
pad5.setExpression("Length", "Params.pad5_length")
pad5.Reversed = True

# Sketch on XZ plane
sketch8 = doc.addObject("Sketcher::SketchObject", "Sketch007")
body.addObject(sketch8)
sketch8.AttachmentSupport = (doc.XZ_Plane, [""])
sketch8.MapMode = "FlatFace"
sketch8.AttachmentOffset = App.Placement(V(0, 0, -4.75), App.Rotation())
sketch8.addGeometry(Part.LineSegment(V(-6.8, 0.1, 0), V(-10, 0.1, 0)), False)
sketch8.addGeometry(Part.LineSegment(V(-10, 0.1, 0), V(-10, 9.5, 0)), False)
sketch8.addGeometry(Part.ArcOfCircle(Part.Circle(V(-8, 9.5, 0), V(0, 0, 1), 2), math.radians(90), math.radians(180)), False)
sketch8.addGeometry(Part.LineSegment(V(-8, 11.5, 0), V(-6.8, 11.5, 0)), False)
sketch8.addGeometry(Part.LineSegment(V(-6.8, 11.5, 0), V(-6.8, 0.1, 0)), False)
sketch8.addGeometry(Part.LineSegment(V(6.8, 0.1, 0), V(6.8, 11.5, 0)), False)
sketch8.addGeometry(Part.LineSegment(V(6.8, 11.5, 0), V(8, 11.5, 0)), False)
sketch8.addGeometry(Part.ArcOfCircle(Part.Circle(V(8, 9.5, 0), V(0, 0, 1), 2), math.radians(0), math.radians(90)), False)
sketch8.addGeometry(Part.LineSegment(V(10, 9.5, 0), V(10, 0.1, 0)), False)
sketch8.addGeometry(Part.LineSegment(V(10, 0.1, 0), V(6.8, 0.1, 0)), False)
sketch8.addConstraint(Sketcher.Constraint("Coincident", 0, 2, 1, 1))
sketch8.addConstraint(Sketcher.Constraint("Tangent", 1, 2, 2, 2))
sketch8.addConstraint(Sketcher.Constraint("Tangent", 2, 1, 3, 1))
sketch8.addConstraint(Sketcher.Constraint("Coincident", 3, 2, 4, 1))
sketch8.addConstraint(Sketcher.Constraint("Coincident", 4, 2, 0, 1))
sketch8.addConstraint(Sketcher.Constraint("Coincident", 5, 2, 6, 1))
sketch8.addConstraint(Sketcher.Constraint("Tangent", 6, 2, 7, 2))
sketch8.addConstraint(Sketcher.Constraint("Tangent", 7, 1, 8, 1))
sketch8.addConstraint(Sketcher.Constraint("Coincident", 8, 2, 9, 1))
sketch8.addConstraint(Sketcher.Constraint("Coincident", 9, 2, 5, 1))
sketch8.addConstraint(Sketcher.Constraint("Horizontal", 0))
sketch8.addConstraint(Sketcher.Constraint("Vertical", 1))
sketch8.addConstraint(Sketcher.Constraint("Horizontal", 3))
sketch8.addConstraint(Sketcher.Constraint("Vertical", 4))
sketch8.addConstraint(Sketcher.Constraint("Vertical", 5))
sketch8.addConstraint(Sketcher.Constraint("Horizontal", 6))
sketch8.addConstraint(Sketcher.Constraint("Vertical", 8))
sketch8.addConstraint(Sketcher.Constraint("Horizontal", 9))
sketch8.addConstraint(Sketcher.Constraint("Equal", 2, 7))
sketch8.addConstraint(Sketcher.Constraint("Symmetric", 2, 3, 7, 3, -2))
sketch8.addConstraint(Sketcher.Constraint("Symmetric", 4, 2, 9, 2, -2))
sketch8.addConstraint(Sketcher.Constraint("Radius", 2, 2.0))
sketch8.addConstraint(Sketcher.Constraint("DistanceX", 2, 3, -1, 1, 8.0))
sketch8.addConstraint(Sketcher.Constraint("DistanceX", 0, 2, 0, 1, 3.25))
sketch8.addConstraint(Sketcher.Constraint("DistanceY", -1, 1, 0, 2, 0.125))
sketch8.addConstraint(Sketcher.Constraint("DistanceY", 1, 1, 1, 2, 9.422583))
sketch8.setExpression("Constraints[21]", "Params.sketch8_radius")
sketch8.setExpression("Constraints[23]", "Params.sketch8_width")
pad6 = doc.addObject("PartDesign::Pad", "Pad005")
body.addObject(pad6)
pad6.Profile = sketch8
pad6.setExpression("Length", "Params.pad6_length")

# Sketch on XZ plane
sketch9 = doc.addObject("Sketcher::SketchObject", "Sketch008")
body.addObject(sketch9)
sketch9.AttachmentSupport = (doc.XZ_Plane, [""])
sketch9.MapMode = "FlatFace"
sketch9.AttachmentOffset = App.Placement(V(0, 0, 5), App.Rotation())
sketch9.addGeometry(Part.LineSegment(V(-7, -4.9, 0), V(-7, -1.1, 0)), False)
sketch9.addGeometry(Part.LineSegment(V(-7, -1.1, 0), V(7, -1.1, 0)), False)
sketch9.addGeometry(Part.LineSegment(V(7, -1.1, 0), V(7, -4.9, 0)), False)
sketch9.addGeometry(Part.LineSegment(V(7, -4.9, 0), V(-7, -4.9, 0)), False)
sketch9.addConstraint(Sketcher.Constraint("Coincident", 0, 2, 1, 1))
sketch9.addConstraint(Sketcher.Constraint("Coincident", 1, 2, 2, 1))
sketch9.addConstraint(Sketcher.Constraint("Coincident", 2, 2, 3, 1))
sketch9.addConstraint(Sketcher.Constraint("Coincident", 3, 2, 0, 1))
sketch9.addConstraint(Sketcher.Constraint("Vertical", 0))
sketch9.addConstraint(Sketcher.Constraint("Horizontal", 1))
sketch9.addConstraint(Sketcher.Constraint("Vertical", 2))
sketch9.addConstraint(Sketcher.Constraint("Horizontal", 3))
sketch9.addConstraint(Sketcher.Constraint("DistanceX", 1, 1, 1, 2, 14.0))
sketch9.addConstraint(Sketcher.Constraint("DistanceX", 0, 2, -1, 1, 7.0))
sketch9.addConstraint(Sketcher.Constraint("DistanceY", 0, 1, 0, 2, 3.75))
sketch9.addConstraint(Sketcher.Constraint("DistanceY", 0, 2, -1, 1, 1.125))
sketch9.setExpression("Constraints[8]", "Params.sketch9_width")
sketch9.setExpression("Constraints[10]", "Params.sketch9_height")
pad7 = doc.addObject("PartDesign::Pad", "Pad006")
body.addObject(pad7)
pad7.Profile = sketch9
pad7.setExpression("Length", "Params.pad7_length")

doc.recompute()
